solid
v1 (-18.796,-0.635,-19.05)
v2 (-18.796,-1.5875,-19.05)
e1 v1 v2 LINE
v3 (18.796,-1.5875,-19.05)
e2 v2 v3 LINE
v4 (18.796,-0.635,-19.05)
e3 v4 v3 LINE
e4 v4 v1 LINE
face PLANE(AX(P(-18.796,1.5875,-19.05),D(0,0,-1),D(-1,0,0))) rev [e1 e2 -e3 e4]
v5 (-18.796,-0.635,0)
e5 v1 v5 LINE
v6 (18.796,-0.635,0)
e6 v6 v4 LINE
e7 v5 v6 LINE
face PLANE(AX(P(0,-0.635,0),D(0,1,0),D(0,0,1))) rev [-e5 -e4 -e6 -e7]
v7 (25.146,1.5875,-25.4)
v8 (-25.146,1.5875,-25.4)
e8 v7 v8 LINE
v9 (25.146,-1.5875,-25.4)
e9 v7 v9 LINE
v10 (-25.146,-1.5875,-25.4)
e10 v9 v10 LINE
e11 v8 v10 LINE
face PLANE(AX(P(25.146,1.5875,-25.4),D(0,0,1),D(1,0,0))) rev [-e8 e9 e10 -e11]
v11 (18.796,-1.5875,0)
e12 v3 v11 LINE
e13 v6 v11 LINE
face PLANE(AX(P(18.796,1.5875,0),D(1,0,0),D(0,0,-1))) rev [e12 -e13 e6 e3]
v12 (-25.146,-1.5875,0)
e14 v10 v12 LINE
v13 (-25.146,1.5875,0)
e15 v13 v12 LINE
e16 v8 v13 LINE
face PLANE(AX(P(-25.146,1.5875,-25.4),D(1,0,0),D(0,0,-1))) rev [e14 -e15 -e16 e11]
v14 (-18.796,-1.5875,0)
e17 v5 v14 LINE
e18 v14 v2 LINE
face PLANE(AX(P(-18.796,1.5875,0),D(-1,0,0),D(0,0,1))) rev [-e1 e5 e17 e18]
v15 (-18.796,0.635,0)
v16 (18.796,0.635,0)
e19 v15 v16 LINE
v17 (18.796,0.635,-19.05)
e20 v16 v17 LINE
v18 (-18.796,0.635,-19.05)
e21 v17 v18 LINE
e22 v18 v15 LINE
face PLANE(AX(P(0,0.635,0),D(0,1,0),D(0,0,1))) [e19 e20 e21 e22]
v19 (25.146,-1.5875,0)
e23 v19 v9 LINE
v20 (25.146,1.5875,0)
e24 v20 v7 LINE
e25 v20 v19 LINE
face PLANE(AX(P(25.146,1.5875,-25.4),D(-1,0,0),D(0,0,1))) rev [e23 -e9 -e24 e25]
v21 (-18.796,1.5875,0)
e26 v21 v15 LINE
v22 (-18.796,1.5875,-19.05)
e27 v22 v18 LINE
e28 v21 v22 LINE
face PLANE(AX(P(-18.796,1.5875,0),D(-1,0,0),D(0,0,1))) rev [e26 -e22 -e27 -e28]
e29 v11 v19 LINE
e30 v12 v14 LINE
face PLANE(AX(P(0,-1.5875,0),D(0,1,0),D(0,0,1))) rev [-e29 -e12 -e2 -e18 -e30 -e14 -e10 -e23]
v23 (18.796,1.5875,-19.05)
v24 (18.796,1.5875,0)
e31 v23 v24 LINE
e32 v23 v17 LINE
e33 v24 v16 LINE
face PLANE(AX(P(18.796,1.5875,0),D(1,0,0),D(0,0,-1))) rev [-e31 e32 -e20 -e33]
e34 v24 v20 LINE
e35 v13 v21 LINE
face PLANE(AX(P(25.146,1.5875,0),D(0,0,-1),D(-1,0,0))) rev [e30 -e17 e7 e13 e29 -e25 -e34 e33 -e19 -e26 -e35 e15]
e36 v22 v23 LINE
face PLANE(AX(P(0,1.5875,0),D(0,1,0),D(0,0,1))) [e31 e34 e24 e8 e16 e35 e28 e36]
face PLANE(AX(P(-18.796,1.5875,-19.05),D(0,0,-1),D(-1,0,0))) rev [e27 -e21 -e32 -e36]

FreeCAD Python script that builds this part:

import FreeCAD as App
import Part
import Sketcher
from FreeCAD import Vector
Q = App.Units.Quantity

doc = App.newDocument("Part")
body = doc.addObject("PartDesign::Body", "Body")

# Sketch on XZ plane
sketch1 = body.newObject("Sketcher::SketchObject", "Sketch")
sketch1.AttachmentSupport = (doc.getObject("XZ_Plane"), [""])
sketch1.MapMode = "FlatFace"
sketch1.addGeometry(Part.LineSegment(Vector(-25, 0, 0), Vector(-19, 0, 0)), False)
sketch1.addGeometry(Part.LineSegment(Vector(-19, 0, 0), Vector(-19, -19, 0)), False)
sketch1.addGeometry(Part.LineSegment(Vector(-19, -19, 0), Vector(19, -19, 0)), False)
sketch1.addGeometry(Part.LineSegment(Vector(19, -19, 0), Vector(19, 0, 0)), False)
sketch1.addGeometry(Part.LineSegment(Vector(19, 0, 0), Vector(25, 0, 0)), False)
sketch1.addGeometry(Part.LineSegment(Vector(25, 0, 0), Vector(25, -25, 0)), False)
sketch1.addGeometry(Part.LineSegment(Vector(25, -25, 0), Vector(-25, -25, 0)), False)
sketch1.addGeometry(Part.LineSegment(Vector(-25, -25, 0), Vector(-25, 0, 0)), False)
sketch1.addConstraint(Sketcher.Constraint("Coincident", 0, 2, 1, 1))
sketch1.addConstraint(Sketcher.Constraint("Coincident", 1, 2, 2, 1))
sketch1.addConstraint(Sketcher.Constraint("Coincident", 2, 2, 3, 1))
sketch1.addConstraint(Sketcher.Constraint("Coincident", 3, 2, 4, 1))
sketch1.addConstraint(Sketcher.Constraint("Coincident", 4, 2, 5, 1))
sketch1.addConstraint(Sketcher.Constraint("Coincident", 5, 2, 6, 1))
sketch1.addConstraint(Sketcher.Constraint("Coincident", 6, 2, 7, 1))
sketch1.addConstraint(Sketcher.Constraint("Coincident", 7, 2, 0, 1))
sketch1.addConstraint(Sketcher.Constraint("Horizontal", 0))
sketch1.addConstraint(Sketcher.Constraint("Vertical", 1))
sketch1.addConstraint(Sketcher.Constraint("Horizontal", 2))
sketch1.addConstraint(Sketcher.Constraint("Vertical", 3))
sketch1.addConstraint(Sketcher.Constraint("Horizontal", 4))
sketch1.addConstraint(Sketcher.Constraint("Vertical", 5))
sketch1.addConstraint(Sketcher.Constraint("Horizontal", 6))
sketch1.addConstraint(Sketcher.Constraint("Vertical", 7))
sketch1.addConstraint(Sketcher.Constraint("Symmetric", 0, 2, 3, 2, -1, 1))
sketch1.addConstraint(Sketcher.Constraint("Symmetric", 4, 2, 7, 2, -2))
sketch1.addConstraint(Sketcher.Constraint("DistanceY", 5, 2, 5, 1, Q("1 in")))
sketch1.addConstraint(Sketcher.Constraint("DistanceX", 0, 1, 0, 2, Q("0.25 in")))
sketch1.addConstraint(Sketcher.Constraint("DistanceX", 2, 1, 2, 2, Q("1.48 in")))
sketch1.addConstraint(Sketcher.Constraint("DistanceY", 1, 2, 1, 1, Q("0.75 in")))
pad1 = body.newObject("PartDesign::Pad", "Pad")
pad1.Profile = sketch1
pad1.Length = Q("0.125 in")
pad1.Midplane = True

# Sketch on XZ plane
sketch2 = body.newObject("Sketcher::SketchObject", "Sketch001")
sketch2.AttachmentSupport = (doc.getObject("XZ_Plane"), [""])
sketch2.MapMode = "FlatFace"
sketch2.addGeometry(Part.LineSegment(Vector(-19, -19, 0), Vector(-19, 0, 0)), False)
sketch2.addGeometry(Part.LineSegment(Vector(-19, 0, 0), Vector(19, 0, 0)), False)
sketch2.addGeometry(Part.LineSegment(Vector(19, 0, 0), Vector(19, -19, 0)), False)
sketch2.addGeometry(Part.LineSegment(Vector(19, -19, 0), Vector(-19, -19, 0)), False)
sketch2.addConstraint(Sketcher.Constraint("Coincident", 0, 2, 1, 1))
sketch2.addConstraint(Sketcher.Constraint("Coincident", 1, 2, 2, 1))
sketch2.addConstraint(Sketcher.Constraint("Coincident", 2, 2, 3, 1))
sketch2.addConstraint(Sketcher.Constraint("Coincident", 3, 2, 0, 1))
sketch2.addConstraint(Sketcher.Constraint("Vertical", 0))
sketch2.addConstraint(Sketcher.Constraint("Horizontal", 1))
sketch2.addConstraint(Sketcher.Constraint("Vertical", 2))
sketch2.addConstraint(Sketcher.Constraint("Horizontal", 3))
sketch2.addConstraint(Sketcher.Constraint("Symmetric", 0, 2, 1, 2, -1, 1))
sketch2.addConstraint(Sketcher.Constraint("DistanceX", 1, 1, 1, 2, Q("1.48 in")))
sketch2.addConstraint(Sketcher.Constraint("DistanceY", 0, 1, 0, 2, Q("0.75 in")))
pad2 = body.newObject("PartDesign::Pad", "Pad001")
pad2.Profile = sketch2
pad2.Length = Q("0.05 in")
pad2.Midplane = True

doc.recompute()
